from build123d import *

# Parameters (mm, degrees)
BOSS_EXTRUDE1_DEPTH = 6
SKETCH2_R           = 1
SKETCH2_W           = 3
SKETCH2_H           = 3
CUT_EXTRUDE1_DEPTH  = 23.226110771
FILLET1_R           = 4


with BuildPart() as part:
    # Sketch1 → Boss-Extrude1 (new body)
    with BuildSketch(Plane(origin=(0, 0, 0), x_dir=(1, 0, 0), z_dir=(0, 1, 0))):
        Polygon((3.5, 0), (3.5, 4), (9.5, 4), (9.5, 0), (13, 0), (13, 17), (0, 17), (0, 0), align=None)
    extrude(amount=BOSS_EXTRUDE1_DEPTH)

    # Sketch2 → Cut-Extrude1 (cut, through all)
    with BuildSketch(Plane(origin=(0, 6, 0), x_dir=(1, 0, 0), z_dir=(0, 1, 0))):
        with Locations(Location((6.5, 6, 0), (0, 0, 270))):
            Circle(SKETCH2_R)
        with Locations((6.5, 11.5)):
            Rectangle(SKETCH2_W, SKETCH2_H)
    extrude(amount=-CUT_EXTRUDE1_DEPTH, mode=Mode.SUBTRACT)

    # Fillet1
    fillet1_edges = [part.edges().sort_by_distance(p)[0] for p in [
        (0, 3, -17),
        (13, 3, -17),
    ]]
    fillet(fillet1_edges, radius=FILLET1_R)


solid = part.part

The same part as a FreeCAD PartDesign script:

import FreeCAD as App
import Part
import Sketcher
from FreeCAD import Vector


def edges_at(feature, points):
    """Names of the edges that pass closest to the given points."""
    edges = feature.Shape.Edges
    near = lambda p: min(range(len(edges)), key=lambda i: edges[i].distToShape(Part.Vertex(*p))[0])
    return sorted({f"Edge{near(p) + 1}" for p in points})

doc = App.newDocument("Part")
params = doc.addObject("Spreadsheet::Sheet", "Params")
for row, (alias, value) in enumerate([
    ("sketch1_width", "6 mm"),
    ("sketch1_width2", "13 mm"),
    ("sketch1_height", "4 mm"),
    ("sketch1_height2", "17 mm"),
    ("pad1_length", "6 mm"),
    ("sketch2_diameter", "2 mm"),
    ("sketch2_width", "3 mm"),
    ("fillet_radius", "4 mm"),
], start=1):
    params.set(f"A{row}", alias)
    params.set(f"B{row}", "=" + value)
    params.setAlias(f"B{row}", alias)

body = doc.addObject("PartDesign::Body", "Body")

sketch1 = body.newObject("Sketcher::SketchObject", "Sketch")
sketch1.AttachmentSupport = (doc.getObject("XZ_Plane"), [""])
sketch1.MapMode = "FlatFace"
sketch1.addGeometry([
    Part.LineSegment(Vector(3.5, 0, 0), Vector(3.5, -4, 0)),
    Part.LineSegment(Vector(3.5, -4, 0), Vector(9.5, -4, 0)),
    Part.LineSegment(Vector(9.5, -4, 0), Vector(9.5, 0, 0)),
    Part.LineSegment(Vector(9.5, 0, 0), Vector(13, 0, 0)),
    Part.LineSegment(Vector(13, 0, 0), Vector(13, -17, 0)),
    Part.LineSegment(Vector(13, -17, 0), Vector(0, -17, 0)),
    Part.LineSegment(Vector(0, -17, 0), Vector(0, 0, 0)),
    Part.LineSegment(Vector(0, 0, 0), Vector(3.5, 0, 0)),
], False)
sketch1.addConstraint([
    Sketcher.Constraint("Coincident", 0, 2, 1, 1),
    Sketcher.Constraint("Coincident", 1, 2, 2, 1),
    Sketcher.Constraint("Coincident", 2, 2, 3, 1),
    Sketcher.Constraint("Coincident", 3, 2, 4, 1),
    Sketcher.Constraint("Coincident", 4, 2, 5, 1),
    Sketcher.Constraint("Coincident", 5, 2, 6, 1),
    Sketcher.Constraint("Coincident", 6, 2, 7, 1),
    Sketcher.Constraint("Coincident", 7, 2, 0, 1),
    Sketcher.Constraint("Vertical", 0),
    Sketcher.Constraint("Horizontal", 1),
    Sketcher.Constraint("Vertical", 2),
    Sketcher.Constraint("Horizontal", 3),
    Sketcher.Constraint("Vertical", 4),
    Sketcher.Constraint("Horizontal", 5),
    Sketcher.Constraint("Vertical", 6),
    Sketcher.Constraint("Horizontal", 7),
    Sketcher.Constraint("Coincident", 6, 2, -1, 1),
    Sketcher.Constraint("PointOnObject", 2, 2, -1),
    Sketcher.Constraint("Equal", 3, 7),
    Sketcher.Constraint("DistanceX", 1, 1, 1, 2, 6.0),
    Sketcher.Constraint("DistanceX", 5, 2, 5, 1, 13.0),
    Sketcher.Constraint("DistanceY", 0, 2, 0, 1, 4.0),
    Sketcher.Constraint("DistanceY", 4, 2, 4, 1, 17.0),
])
sketch1.setExpression("Constraints[19]", "Params.sketch1_width")
sketch1.setExpression("Constraints[20]", "Params.sketch1_width2")
sketch1.setExpression("Constraints[21]", "Params.sketch1_height")
sketch1.setExpression("Constraints[22]", "Params.sketch1_height2")
pad1 = body.newObject("PartDesign::Pad", "Pad")
pad1.Profile = sketch1
pad1.setExpression("Length", "Params.pad1_length")
pad1.Reversed = True

sketch2 = body.newObject("Sketcher::SketchObject", "Sketch001")
sketch2.AttachmentSupport = (doc.getObject("XZ_Plane"), [""])
sketch2.MapMode = "FlatFace"
sketch2.AttachmentOffset = App.Placement(Vector(0, 0, -6), App.Rotation())
sketch2.addGeometry([
    Part.Circle(Vector(6.5, -6, 0), Vector(0, 0, 1), 1),
    Part.LineSegment(Vector(5, -13, 0), Vector(5, -10, 0)),
    Part.LineSegment(Vector(5, -10, 0), Vector(8, -10, 0)),
    Part.LineSegment(Vector(8, -10, 0), Vector(8, -13, 0)),
    Part.LineSegment(Vector(8, -13, 0), Vector(5, -13, 0)),
], False)
sketch2.addConstraint([
    Sketcher.Constraint("Coincident", 1, 2, 2, 1),
    Sketcher.Constraint("Coincident", 2, 2, 3, 1),
    Sketcher.Constraint("Coincident", 3, 2, 4, 1),
    Sketcher.Constraint("Coincident", 4, 2, 1, 1),
    Sketcher.Constraint("Vertical", 1),
    Sketcher.Constraint("Horizontal", 2),
    Sketcher.Constraint("Vertical", 3),
    Sketcher.Constraint("Horizontal", 4),
    Sketcher.Constraint("Equal", 4, 1),
    Sketcher.Constraint("Diameter", 0, 2.0),
    Sketcher.Constraint("DistanceX", 2, 1, 2, 2, 3.0),
    Sketcher.Constraint("DistanceY", 0, 3, -1, 1, 6.0),
    Sketcher.Constraint("DistanceX", -1, 1, 1, 2, 5.0),
    Sketcher.Constraint("DistanceY", 1, 2, -1, 1, 10.0),
    Sketcher.Constraint("DistanceX", -1, 1, 0, 3, 6.5),
])
sketch2.setExpression("Constraints[9]", "Params.sketch2_diameter")
sketch2.setExpression("Constraints[10]", "Params.sketch2_width")
pocket1 = body.newObject("PartDesign::Pocket", "Pocket")
pocket1.Profile = sketch2
pocket1.Type = "ThroughAll"
pocket1.Reversed = True
doc.recompute()

fillet = body.newObject("PartDesign::Fillet", "Fillet")
fillet.Base = (pocket1, edges_at(pocket1, [(0, 3, -17), (13, 3, -17)]))
fillet.setExpression("Radius", "Params.fillet_radius")

doc.recompute()
